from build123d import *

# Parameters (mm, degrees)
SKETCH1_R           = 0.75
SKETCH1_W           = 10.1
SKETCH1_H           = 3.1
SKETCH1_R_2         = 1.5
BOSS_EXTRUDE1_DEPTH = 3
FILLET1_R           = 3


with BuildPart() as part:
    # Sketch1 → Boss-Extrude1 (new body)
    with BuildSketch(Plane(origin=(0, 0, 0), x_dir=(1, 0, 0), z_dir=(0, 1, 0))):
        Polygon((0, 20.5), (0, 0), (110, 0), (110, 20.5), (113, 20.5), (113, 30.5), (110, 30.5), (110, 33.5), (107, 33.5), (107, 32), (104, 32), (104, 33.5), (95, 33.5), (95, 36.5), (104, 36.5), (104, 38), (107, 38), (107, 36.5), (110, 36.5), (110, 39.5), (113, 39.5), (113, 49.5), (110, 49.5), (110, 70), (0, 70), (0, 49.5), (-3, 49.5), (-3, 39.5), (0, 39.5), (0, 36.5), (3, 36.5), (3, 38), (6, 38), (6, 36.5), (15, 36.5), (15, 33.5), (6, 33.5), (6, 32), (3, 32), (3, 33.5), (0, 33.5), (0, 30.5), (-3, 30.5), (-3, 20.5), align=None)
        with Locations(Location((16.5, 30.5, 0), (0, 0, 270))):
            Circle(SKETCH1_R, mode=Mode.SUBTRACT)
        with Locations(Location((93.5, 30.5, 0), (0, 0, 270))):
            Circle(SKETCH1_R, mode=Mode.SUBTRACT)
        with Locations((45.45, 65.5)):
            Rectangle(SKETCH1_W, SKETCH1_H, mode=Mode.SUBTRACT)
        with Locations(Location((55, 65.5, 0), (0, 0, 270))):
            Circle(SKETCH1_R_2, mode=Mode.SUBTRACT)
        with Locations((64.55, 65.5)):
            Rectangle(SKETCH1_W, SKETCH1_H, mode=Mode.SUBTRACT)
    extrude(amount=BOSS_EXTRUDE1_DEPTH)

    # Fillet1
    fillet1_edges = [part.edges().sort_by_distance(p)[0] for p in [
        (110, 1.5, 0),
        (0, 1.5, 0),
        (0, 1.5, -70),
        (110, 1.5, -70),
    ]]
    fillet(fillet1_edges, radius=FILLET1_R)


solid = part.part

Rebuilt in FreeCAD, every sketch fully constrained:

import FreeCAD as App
import Part
import Sketcher
from FreeCAD import Vector


def edges_at(feature, points):
    """Names of the edges that pass closest to the given points."""
    edges = feature.Shape.Edges
    near = lambda p: min(range(len(edges)), key=lambda i: edges[i].distToShape(Part.Vertex(*p))[0])
    return sorted({f"Edge{near(p) + 1}" for p in points})

doc = App.newDocument("Part")
params = doc.addObject("Spreadsheet::Sheet", "Params")
for row, (alias, value) in enumerate([
    ("sketch1_diameter", "3 mm"),
    ("sketch1_diameter2", "1.5 mm"),
    ("sketch1_width", "110 mm"),
    ("sketch1_width2", "3 mm"),
    ("sketch1_width3", "9 mm"),
    ("pad1_length", "3 mm"),
    ("fillet_radius", "3 mm"),
], start=1):
    params.set(f"A{row}", alias)
    params.set(f"B{row}", "=" + value)
    params.setAlias(f"B{row}", alias)

body = doc.addObject("PartDesign::Body", "Body")

# Sketch on XZ plane
sketch1 = body.newObject("Sketcher::SketchObject", "Sketch")
sketch1.AttachmentSupport = (doc.getObject("XZ_Plane"), [""])
sketch1.MapMode = "FlatFace"
sketch1.addGeometry(Part.LineSegment(Vector(0, -20.5, 0), Vector(0, 0, 0)), False)
sketch1.addGeometry(Part.LineSegment(Vector(0, 0, 0), Vector(110, 0, 0)), False)
sketch1.addGeometry(Part.LineSegment(Vector(110, 0, 0), Vector(110, -20.5, 0)), False)
sketch1.addGeometry(Part.LineSegment(Vector(110, -20.5, 0), Vector(113, -20.5, 0)), False)
sketch1.addGeometry(Part.LineSegment(Vector(113, -20.5, 0), Vector(113, -30.5, 0)), False)
sketch1.addGeometry(Part.LineSegment(Vector(113, -30.5, 0), Vector(110, -30.5, 0)), False)
sketch1.addGeometry(Part.LineSegment(Vector(110, -30.5, 0), Vector(110, -33.5, 0)), False)
sketch1.addGeometry(Part.LineSegment(Vector(110, -33.5, 0), Vector(107, -33.5, 0)), False)
sketch1.addGeometry(Part.LineSegment(Vector(107, -33.5, 0), Vector(107, -32, 0)), False)
sketch1.addGeometry(Part.LineSegment(Vector(107, -32, 0), Vector(104, -32, 0)), False)
sketch1.addGeometry(Part.LineSegment(Vector(104, -32, 0), Vector(104, -33.5, 0)), False)
sketch1.addGeometry(Part.LineSegment(Vector(104, -33.5, 0), Vector(95, -33.5, 0)), False)
sketch1.addGeometry(Part.LineSegment(Vector(95, -33.5, 0), Vector(95, -36.5, 0)), False)
sketch1.addGeometry(Part.LineSegment(Vector(95, -36.5, 0), Vector(104, -36.5, 0)), False)
sketch1.addGeometry(Part.LineSegment(Vector(104, -36.5, 0), Vector(104, -38, 0)), False)
sketch1.addGeometry(Part.LineSegment(Vector(104, -38, 0), Vector(107, -38, 0)), False)
sketch1.addGeometry(Part.LineSegment(Vector(107, -38, 0), Vector(107, -36.5, 0)), False)
sketch1.addGeometry(Part.LineSegment(Vector(107, -36.5, 0), Vector(110, -36.5, 0)), False)
sketch1.addGeometry(Part.LineSegment(Vector(110, -36.5, 0), Vector(110, -39.5, 0)), False)
sketch1.addGeometry(Part.LineSegment(Vector(110, -39.5, 0), Vector(113, -39.5, 0)), False)
sketch1.addGeometry(Part.LineSegment(Vector(113, -39.5, 0), Vector(113, -49.5, 0)), False)
sketch1.addGeometry(Part.LineSegment(Vector(113, -49.5, 0), Vector(110, -49.5, 0)), False)
sketch1.addGeometry(Part.LineSegment(Vector(110, -49.5, 0), Vector(110, -70, 0)), False)
sketch1.addGeometry(Part.LineSegment(Vector(110, -70, 0), Vector(0, -70, 0)), False)
sketch1.addGeometry(Part.LineSegment(Vector(0, -70, 0), Vector(0, -49.5, 0)), False)
sketch1.addGeometry(Part.LineSegment(Vector(0, -49.5, 0), Vector(-3, -49.5, 0)), False)
sketch1.addGeometry(Part.LineSegment(Vector(-3, -49.5, 0), Vector(-3, -39.5, 0)), False)
sketch1.addGeometry(Part.LineSegment(Vector(-3, -39.5, 0), Vector(0, -39.5, 0)), False)
sketch1.addGeometry(Part.LineSegment(Vector(0, -39.5, 0), Vector(0, -36.5, 0)), False)
sketch1.addGeometry(Part.LineSegment(Vector(0, -36.5, 0), Vector(3, -36.5, 0)), False)
sketch1.addGeometry(Part.LineSegment(Vector(3, -36.5, 0), Vector(3, -38, 0)), False)
sketch1.addGeometry(Part.LineSegment(Vector(3, -38, 0), Vector(6, -38, 0)), False)
sketch1.addGeometry(Part.LineSegment(Vector(6, -38, 0), Vector(6, -36.5, 0)), False)
sketch1.addGeometry(Part.LineSegment(Vector(6, -36.5, 0), Vector(15, -36.5, 0)), False)
sketch1.addGeometry(Part.LineSegment(Vector(15, -36.5, 0), Vector(15, -33.5, 0)), False)
sketch1.addGeometry(Part.LineSegment(Vector(15, -33.5, 0), Vector(6, -33.5, 0)), False)
sketch1.addGeometry(Part.LineSegment(Vector(6, -33.5, 0), Vector(6, -32, 0)), False)
sketch1.addGeometry(Part.LineSegment(Vector(6, -32, 0), Vector(3, -32, 0)), False)
sketch1.addGeometry(Part.LineSegment(Vector(3, -32, 0), Vector(3, -33.5, 0)), False)
sketch1.addGeometry(Part.LineSegment(Vector(3, -33.5, 0), Vector(0, -33.5, 0)), False)
sketch1.addGeometry(Part.LineSegment(Vector(0, -33.5, 0), Vector(0, -30.5, 0)), False)
sketch1.addGeometry(Part.LineSegment(Vector(0, -30.5, 0), Vector(-3, -30.5, 0)), False)
sketch1.addGeometry(Part.LineSegment(Vector(-3, -30.5, 0), Vector(-3, -20.5, 0)), False)
sketch1.addGeometry(Part.LineSegment(Vector(-3, -20.5, 0), Vector(0, -20.5, 0)), False)
sketch1.addGeometry(Part.Circle(Vector(16.5, -30.5, 0), Vector(0, 0, 1), 0.8), False)
sketch1.addGeometry(Part.Circle(Vector(93.5, -30.5, 0), Vector(0, 0, 1), 0.8), False)
sketch1.addGeometry(Part.LineSegment(Vector(50.5, -64, 0), Vector(40.4, -64, 0)), False)
sketch1.addGeometry(Part.LineSegment(Vector(40.4, -64, 0), Vector(40.4, -67, 0)), False)
sketch1.addGeometry(Part.LineSegment(Vector(40.4, -67, 0), Vector(50.5, -67, 0)), False)
sketch1.addGeometry(Part.LineSegment(Vector(50.5, -67, 0), Vector(50.5, -64, 0)), False)
sketch1.addGeometry(Part.Circle(Vector(55, -65.5, 0), Vector(0, 0, 1), 1.5), False)
sketch1.addGeometry(Part.LineSegment(Vector(69.6, -64, 0), Vector(59.5, -64, 0)), False)
sketch1.addGeometry(Part.LineSegment(Vector(59.5, -64, 0), Vector(59.5, -67, 0)), False)
sketch1.addGeometry(Part.LineSegment(Vector(59.5, -67, 0), Vector(69.6, -67, 0)), False)
sketch1.addGeometry(Part.LineSegment(Vector(69.6, -67, 0), Vector(69.6, -64, 0)), False)
sketch1.addConstraint(Sketcher.Constraint("Coincident", 0, 2, 1, 1))
sketch1.addConstraint(Sketcher.Constraint("Coincident", 1, 2, 2, 1))
sketch1.addConstraint(Sketcher.Constraint("Coincident", 2, 2, 3, 1))
sketch1.addConstraint(Sketcher.Constraint("Coincident", 3, 2, 4, 1))
sketch1.addConstraint(Sketcher.Constraint("Coincident", 4, 2, 5, 1))
sketch1.addConstraint(Sketcher.Constraint("Coincident", 5, 2, 6, 1))
sketch1.addConstraint(Sketcher.Constraint("Coincident", 6, 2, 7, 1))
sketch1.addConstraint(Sketcher.Constraint("Coincident", 7, 2, 8, 1))
sketch1.addConstraint(Sketcher.Constraint("Coincident", 8, 2, 9, 1))
sketch1.addConstraint(Sketcher.Constraint("Coincident", 9, 2, 10, 1))
sketch1.addConstraint(Sketcher.Constraint("Coincident", 10, 2, 11, 1))
sketch1.addConstraint(Sketcher.Constraint("Coincident", 11, 2, 12, 1))
sketch1.addConstraint(Sketcher.Constraint("Coincident", 12, 2, 13, 1))
sketch1.addConstraint(Sketcher.Constraint("Coincident", 13, 2, 14, 1))
sketch1.addConstraint(Sketcher.Constraint("Coincident", 14, 2, 15, 1))
sketch1.addConstraint(Sketcher.Constraint("Coincident", 15, 2, 16, 1))
sketch1.addConstraint(Sketcher.Constraint("Coincident", 16, 2, 17, 1))
sketch1.addConstraint(Sketcher.Constraint("Coincident", 17, 2, 18, 1))
sketch1.addConstraint(Sketcher.Constraint("Coincident", 18, 2, 19, 1))
sketch1.addConstraint(Sketcher.Constraint("Coincident", 19, 2, 20, 1))
sketch1.addConstraint(Sketcher.Constraint("Coincident", 20, 2, 21, 1))
sketch1.addConstraint(Sketcher.Constraint("Coincident", 21, 2, 22, 1))
sketch1.addConstraint(Sketcher.Constraint("Coincident", 22, 2, 23, 1))
sketch1.addConstraint(Sketcher.Constraint("Coincident", 23, 2, 24, 1))
sketch1.addConstraint(Sketcher.Constraint("Coincident", 24, 2, 25, 1))
sketch1.addConstraint(Sketcher.Constraint("Coincident", 25, 2, 26, 1))
sketch1.addConstraint(Sketcher.Constraint("Coincident", 26, 2, 27, 1))
sketch1.addConstraint(Sketcher.Constraint("Coincident", 27, 2, 28, 1))
sketch1.addConstraint(Sketcher.Constraint("Coincident", 28, 2, 29, 1))
sketch1.addConstraint(Sketcher.Constraint("Coincident", 29, 2, 30, 1))
sketch1.addConstraint(Sketcher.Constraint("Coincident", 30, 2, 31, 1))
sketch1.addConstraint(Sketcher.Constraint("Coincident", 31, 2, 32, 1))
sketch1.addConstraint(Sketcher.Constraint("Coincident", 32, 2, 33, 1))
sketch1.addConstraint(Sketcher.Constraint("Coincident", 33, 2, 34, 1))
sketch1.addConstraint(Sketcher.Constraint("Coincident", 34, 2, 35, 1))
sketch1.addConstraint(Sketcher.Constraint("Coincident", 35, 2, 36, 1))
sketch1.addConstraint(Sketcher.Constraint("Coincident", 36, 2, 37, 1))
sketch1.addConstraint(Sketcher.Constraint("Coincident", 37, 2, 38, 1))
sketch1.addConstraint(Sketcher.Constraint("Coincident", 38, 2, 39, 1))
sketch1.addConstraint(Sketcher.Constraint("Coincident", 39, 2, 40, 1))
sketch1.addConstraint(Sketcher.Constraint("Coincident", 40, 2, 41, 1))
sketch1.addConstraint(Sketcher.Constraint("Coincident", 41, 2, 42, 1))
sketch1.addConstraint(Sketcher.Constraint("Coincident", 42, 2, 43, 1))
sketch1.addConstraint(Sketcher.Constraint("Coincident", 43, 2, 0, 1))
sketch1.addConstraint(Sketcher.Constraint("Coincident", 46, 2, 47, 1))
sketch1.addConstraint(Sketcher.Constraint("Coincident", 47, 2, 48, 1))
sketch1.addConstraint(Sketcher.Constraint("Coincident", 48, 2, 49, 1))
sketch1.addConstraint(Sketcher.Constraint("Coincident", 49, 2, 46, 1))
sketch1.addConstraint(Sketcher.Constraint("Coincident", 51, 2, 52, 1))
sketch1.addConstraint(Sketcher.Constraint("Coincident", 52, 2, 53, 1))
sketch1.addConstraint(Sketcher.Constraint("Coincident", 53, 2, 54, 1))
sketch1.addConstraint(Sketcher.Constraint("Coincident", 54, 2, 51, 1))
sketch1.addConstraint(Sketcher.Constraint("Vertical", 0))
sketch1.addConstraint(Sketcher.Constraint("Horizontal", 1))
sketch1.addConstraint(Sketcher.Constraint("Vertical", 2))
sketch1.addConstraint(Sketcher.Constraint("Horizontal", 3))
sketch1.addConstraint(Sketcher.Constraint("Vertical", 4))
sketch1.addConstraint(Sketcher.Constraint("Horizontal", 5))
sketch1.addConstraint(Sketcher.Constraint("Vertical", 6))
sketch1.addConstraint(Sketcher.Constraint("Horizontal", 7))
sketch1.addConstraint(Sketcher.Constraint("Vertical", 8))
sketch1.addConstraint(Sketcher.Constraint("Horizontal", 9))
sketch1.addConstraint(Sketcher.Constraint("Vertical", 10))
sketch1.addConstraint(Sketcher.Constraint("Horizontal", 11))
sketch1.addConstraint(Sketcher.Constraint("Vertical", 12))
sketch1.addConstraint(Sketcher.Constraint("Horizontal", 13))
sketch1.addConstraint(Sketcher.Constraint("Vertical", 14))
sketch1.addConstraint(Sketcher.Constraint("Horizontal", 15))
sketch1.addConstraint(Sketcher.Constraint("Vertical", 16))
sketch1.addConstraint(Sketcher.Constraint("Horizontal", 17))
sketch1.addConstraint(Sketcher.Constraint("Vertical", 18))
sketch1.addConstraint(Sketcher.Constraint("Horizontal", 19))
sketch1.addConstraint(Sketcher.Constraint("Vertical", 20))
sketch1.addConstraint(Sketcher.Constraint("Horizontal", 21))
sketch1.addConstraint(Sketcher.Constraint("Vertical", 22))
sketch1.addConstraint(Sketcher.Constraint("Horizontal", 23))
sketch1.addConstraint(Sketcher.Constraint("Vertical", 24))
sketch1.addConstraint(Sketcher.Constraint("Horizontal", 25))
sketch1.addConstraint(Sketcher.Constraint("Vertical", 26))
sketch1.addConstraint(Sketcher.Constraint("Horizontal", 27))
sketch1.addConstraint(Sketcher.Constraint("Vertical", 28))
sketch1.addConstraint(Sketcher.Constraint("Horizontal", 29))
sketch1.addConstraint(Sketcher.Constraint("Vertical", 30))
sketch1.addConstraint(Sketcher.Constraint("Horizontal", 31))
sketch1.addConstraint(Sketcher.Constraint("Vertical", 32))
sketch1.addConstraint(Sketcher.Constraint("Horizontal", 33))
sketch1.addConstraint(Sketcher.Constraint("Vertical", 34))
sketch1.addConstraint(Sketcher.Constraint("Horizontal", 35))
sketch1.addConstraint(Sketcher.Constraint("Vertical", 36))
sketch1.addConstraint(Sketcher.Constraint("Horizontal", 37))
sketch1.addConstraint(Sketcher.Constraint("Vertical", 38))
sketch1.addConstraint(Sketcher.Constraint("Horizontal", 39))
sketch1.addConstraint(Sketcher.Constraint("Vertical", 40))
sketch1.addConstraint(Sketcher.Constraint("Horizontal", 41))
sketch1.addConstraint(Sketcher.Constraint("Vertical", 42))
sketch1.addConstraint(Sketcher.Constraint("Horizontal", 43))
sketch1.addConstraint(Sketcher.Constraint("Horizontal", 46))
sketch1.addConstraint(Sketcher.Constraint("Vertical", 47))
sketch1.addConstraint(Sketcher.Constraint("Horizontal", 48))
sketch1.addConstraint(Sketcher.Constraint("Vertical", 49))
sketch1.addConstraint(Sketcher.Constraint("Horizontal", 51))
sketch1.addConstraint(Sketcher.Constraint("Vertical", 52))
sketch1.addConstraint(Sketcher.Constraint("Horizontal", 53))
sketch1.addConstraint(Sketcher.Constraint("Vertical", 54))
sketch1.addConstraint(Sketcher.Constraint("Coincident", 0, 2, -1, 1))
sketch1.addConstraint(Sketcher.Constraint("Equal", 44, 45))
sketch1.addConstraint(Sketcher.Constraint("PointOnObject", 23, 2, -2))
sketch1.addConstraint(Sketcher.Constraint("PointOnObject", 27, 2, -2))
sketch1.addConstraint(Sketcher.Constraint("PointOnObject", 39, 2, -2))
sketch1.addConstraint(Sketcher.Constraint("Horizontal", 44, 3, 45, 3))
sketch1.addConstraint(Sketcher.Constraint("Horizontal", 45, 3, 4, 2))
sketch1.addConstraint(Sketcher.Constraint("Horizontal", 7, 2, 10, 2))
sketch1.addConstraint(Sketcher.Constraint("Horizontal", 13, 2, 16, 2))
sketch1.addConstraint(Sketcher.Constraint("Horizontal", 21, 2, 24, 2))
sketch1.addConstraint(Sketcher.Constraint("Horizontal", 19, 2, 26, 2))
sketch1.addConstraint(Sketcher.Constraint("Horizontal", 17, 2, 28, 2))
sketch1.addConstraint(Sketcher.Constraint("Horizontal", 15, 2, 30, 2))
sketch1.addConstraint(Sketcher.Constraint("Horizontal", 29, 2, 32, 2))
sketch1.addConstraint(Sketcher.Constraint("Horizontal", 11, 2, 34, 2))
sketch1.addConstraint(Sketcher.Constraint("Horizontal", 9, 2, 36, 2))
sketch1.addConstraint(Sketcher.Constraint("Horizontal", 35, 2, 38, 2))
sketch1.addConstraint(Sketcher.Constraint("Horizontal", 5, 2, 40, 2))
sketch1.addConstraint(Sketcher.Constraint("Horizontal", 3, 2, 42, 2))
sketch1.addConstraint(Sketcher.Constraint("Horizontal", 49, 2, 51, 2))
sketch1.addConstraint(Sketcher.Constraint("Horizontal", 48, 2, 52, 2))
sketch1.addConstraint(Sketcher.Constraint("Vertical", 2, 2, 5, 2))
sketch1.addConstraint(Sketcher.Constraint("Vertical", 10, 2, 13, 2))
sketch1.addConstraint(Sketcher.Constraint("Vertical", 8, 2, 15, 2))
sketch1.addConstraint(Sketcher.Constraint("Vertical", 6, 2, 17, 2))
sketch1.addConstraint(Sketcher.Constraint("Vertical", 4, 2, 19, 2))
sketch1.addConstraint(Sketcher.Constraint("Vertical", 18, 2, 21, 2))
sketch1.addConstraint(Sketcher.Constraint("Vertical", 32, 2, 35, 2))
sketch1.addConstraint(Sketcher.Constraint("Vertical", 30, 2, 37, 2))
sketch1.addConstraint(Sketcher.Constraint("Vertical", 26, 2, 41, 2))
sketch1.addConstraint(Sketcher.Constraint("Equal", 5, 7))
sketch1.addConstraint(Sketcher.Constraint("Equal", 7, 9))
sketch1.addConstraint(Sketcher.Constraint("Equal", 21, 25))
sketch1.addConstraint(Sketcher.Constraint("Equal", 27, 29))
sketch1.addConstraint(Sketcher.Constraint("Equal", 29, 31))
sketch1.addConstraint(Sketcher.Constraint("Equal", 13, 33))
sketch1.addConstraint(Sketcher.Constraint("Equal", 48, 51))
sketch1.addConstraint(Sketcher.Constraint("Equal", 43, 6))
sketch1.addConstraint(Sketcher.Constraint("Equal", 6, 12))
sketch1.addConstraint(Sketcher.Constraint("Equal", 10, 14))
sketch1.addConstraint(Sketcher.Constraint("Equal", 12, 18))
sketch1.addConstraint(Sketcher.Constraint("Equal", 4, 20))
sketch1.addConstraint(Sketcher.Constraint("Equal", 2, 22))
sketch1.addConstraint(Sketcher.Constraint("Diameter", 50, 3.0))
sketch1.addConstraint(Sketcher.Constraint("Diameter", 44, 1.5))
sketch1.addConstraint(Sketcher.Constraint("DistanceX", 1, 1, 1, 2, 110.0))
sketch1.addConstraint(Sketcher.Constraint("DistanceX", 3, 1, 3, 2, 3.0))
sketch1.addConstraint(Sketcher.Constraint("DistanceX", 11, 2, 11, 1, 9.0))
sketch1.addConstraint(Sketcher.Constraint("DistanceY", 4, 2, 4, 1, 10.0))
sketch1.addConstraint(Sketcher.Constraint("DistanceX", 46, 2, 46, 1, 10.1))
sketch1.addConstraint(Sketcher.Constraint("DistanceY", 0, 1, 0, 2, 20.5))
sketch1.addConstraint(Sketcher.Constraint("DistanceY", 8, 1, 8, 2, 1.5))
sketch1.addConstraint(Sketcher.Constraint("DistanceY", 47, 2, 47, 1, 3.1))
sketch1.addConstraint(Sketcher.Constraint("DistanceX", -1, 1, 50, 3, 55.0))
sketch1.addConstraint(Sketcher.Constraint("DistanceX", 44, 3, 45, 3, 77.0))
sketch1.addConstraint(Sketcher.Constraint("DistanceY", 50, 3, 44, 3, 35.0))
sketch1.addConstraint(Sketcher.Constraint("DistanceX", 49, 2, 51, 2, 9.0))
sketch1.addConstraint(Sketcher.Constraint("DistanceX", -1, 1, 44, 3, 16.5))
sketch1.addConstraint(Sketcher.Constraint("DistanceX", -1, 1, 46, 2, 40.4))
sketch1.addConstraint(Sketcher.Constraint("DistanceY", 46, 2, -1, 1, 63.95))
sketch1.setExpression("Constraints[147]", "Params.sketch1_diameter")
sketch1.setExpression("Constraints[148]", "Params.sketch1_diameter2")
sketch1.setExpression("Constraints[149]", "Params.sketch1_width")
sketch1.setExpression("Constraints[150]", "Params.sketch1_width2")
sketch1.setExpression("Constraints[151]", "Params.sketch1_width3")
pad1 = body.newObject("PartDesign::Pad", "Pad")
pad1.Profile = sketch1
pad1.setExpression("Length", "Params.pad1_length")
pad1.Reversed = True
doc.recompute()

fillet = body.newObject("PartDesign::Fillet", "Fillet")
fillet.Base = (pad1, edges_at(pad1, [
    (110, 1.5, 0),
    (0, 1.5, 0),
    (0, 1.5, -70),
    (110, 1.5, -70),
]))
fillet.setExpression("Radius", "Params.fillet_radius")

doc.recompute()
